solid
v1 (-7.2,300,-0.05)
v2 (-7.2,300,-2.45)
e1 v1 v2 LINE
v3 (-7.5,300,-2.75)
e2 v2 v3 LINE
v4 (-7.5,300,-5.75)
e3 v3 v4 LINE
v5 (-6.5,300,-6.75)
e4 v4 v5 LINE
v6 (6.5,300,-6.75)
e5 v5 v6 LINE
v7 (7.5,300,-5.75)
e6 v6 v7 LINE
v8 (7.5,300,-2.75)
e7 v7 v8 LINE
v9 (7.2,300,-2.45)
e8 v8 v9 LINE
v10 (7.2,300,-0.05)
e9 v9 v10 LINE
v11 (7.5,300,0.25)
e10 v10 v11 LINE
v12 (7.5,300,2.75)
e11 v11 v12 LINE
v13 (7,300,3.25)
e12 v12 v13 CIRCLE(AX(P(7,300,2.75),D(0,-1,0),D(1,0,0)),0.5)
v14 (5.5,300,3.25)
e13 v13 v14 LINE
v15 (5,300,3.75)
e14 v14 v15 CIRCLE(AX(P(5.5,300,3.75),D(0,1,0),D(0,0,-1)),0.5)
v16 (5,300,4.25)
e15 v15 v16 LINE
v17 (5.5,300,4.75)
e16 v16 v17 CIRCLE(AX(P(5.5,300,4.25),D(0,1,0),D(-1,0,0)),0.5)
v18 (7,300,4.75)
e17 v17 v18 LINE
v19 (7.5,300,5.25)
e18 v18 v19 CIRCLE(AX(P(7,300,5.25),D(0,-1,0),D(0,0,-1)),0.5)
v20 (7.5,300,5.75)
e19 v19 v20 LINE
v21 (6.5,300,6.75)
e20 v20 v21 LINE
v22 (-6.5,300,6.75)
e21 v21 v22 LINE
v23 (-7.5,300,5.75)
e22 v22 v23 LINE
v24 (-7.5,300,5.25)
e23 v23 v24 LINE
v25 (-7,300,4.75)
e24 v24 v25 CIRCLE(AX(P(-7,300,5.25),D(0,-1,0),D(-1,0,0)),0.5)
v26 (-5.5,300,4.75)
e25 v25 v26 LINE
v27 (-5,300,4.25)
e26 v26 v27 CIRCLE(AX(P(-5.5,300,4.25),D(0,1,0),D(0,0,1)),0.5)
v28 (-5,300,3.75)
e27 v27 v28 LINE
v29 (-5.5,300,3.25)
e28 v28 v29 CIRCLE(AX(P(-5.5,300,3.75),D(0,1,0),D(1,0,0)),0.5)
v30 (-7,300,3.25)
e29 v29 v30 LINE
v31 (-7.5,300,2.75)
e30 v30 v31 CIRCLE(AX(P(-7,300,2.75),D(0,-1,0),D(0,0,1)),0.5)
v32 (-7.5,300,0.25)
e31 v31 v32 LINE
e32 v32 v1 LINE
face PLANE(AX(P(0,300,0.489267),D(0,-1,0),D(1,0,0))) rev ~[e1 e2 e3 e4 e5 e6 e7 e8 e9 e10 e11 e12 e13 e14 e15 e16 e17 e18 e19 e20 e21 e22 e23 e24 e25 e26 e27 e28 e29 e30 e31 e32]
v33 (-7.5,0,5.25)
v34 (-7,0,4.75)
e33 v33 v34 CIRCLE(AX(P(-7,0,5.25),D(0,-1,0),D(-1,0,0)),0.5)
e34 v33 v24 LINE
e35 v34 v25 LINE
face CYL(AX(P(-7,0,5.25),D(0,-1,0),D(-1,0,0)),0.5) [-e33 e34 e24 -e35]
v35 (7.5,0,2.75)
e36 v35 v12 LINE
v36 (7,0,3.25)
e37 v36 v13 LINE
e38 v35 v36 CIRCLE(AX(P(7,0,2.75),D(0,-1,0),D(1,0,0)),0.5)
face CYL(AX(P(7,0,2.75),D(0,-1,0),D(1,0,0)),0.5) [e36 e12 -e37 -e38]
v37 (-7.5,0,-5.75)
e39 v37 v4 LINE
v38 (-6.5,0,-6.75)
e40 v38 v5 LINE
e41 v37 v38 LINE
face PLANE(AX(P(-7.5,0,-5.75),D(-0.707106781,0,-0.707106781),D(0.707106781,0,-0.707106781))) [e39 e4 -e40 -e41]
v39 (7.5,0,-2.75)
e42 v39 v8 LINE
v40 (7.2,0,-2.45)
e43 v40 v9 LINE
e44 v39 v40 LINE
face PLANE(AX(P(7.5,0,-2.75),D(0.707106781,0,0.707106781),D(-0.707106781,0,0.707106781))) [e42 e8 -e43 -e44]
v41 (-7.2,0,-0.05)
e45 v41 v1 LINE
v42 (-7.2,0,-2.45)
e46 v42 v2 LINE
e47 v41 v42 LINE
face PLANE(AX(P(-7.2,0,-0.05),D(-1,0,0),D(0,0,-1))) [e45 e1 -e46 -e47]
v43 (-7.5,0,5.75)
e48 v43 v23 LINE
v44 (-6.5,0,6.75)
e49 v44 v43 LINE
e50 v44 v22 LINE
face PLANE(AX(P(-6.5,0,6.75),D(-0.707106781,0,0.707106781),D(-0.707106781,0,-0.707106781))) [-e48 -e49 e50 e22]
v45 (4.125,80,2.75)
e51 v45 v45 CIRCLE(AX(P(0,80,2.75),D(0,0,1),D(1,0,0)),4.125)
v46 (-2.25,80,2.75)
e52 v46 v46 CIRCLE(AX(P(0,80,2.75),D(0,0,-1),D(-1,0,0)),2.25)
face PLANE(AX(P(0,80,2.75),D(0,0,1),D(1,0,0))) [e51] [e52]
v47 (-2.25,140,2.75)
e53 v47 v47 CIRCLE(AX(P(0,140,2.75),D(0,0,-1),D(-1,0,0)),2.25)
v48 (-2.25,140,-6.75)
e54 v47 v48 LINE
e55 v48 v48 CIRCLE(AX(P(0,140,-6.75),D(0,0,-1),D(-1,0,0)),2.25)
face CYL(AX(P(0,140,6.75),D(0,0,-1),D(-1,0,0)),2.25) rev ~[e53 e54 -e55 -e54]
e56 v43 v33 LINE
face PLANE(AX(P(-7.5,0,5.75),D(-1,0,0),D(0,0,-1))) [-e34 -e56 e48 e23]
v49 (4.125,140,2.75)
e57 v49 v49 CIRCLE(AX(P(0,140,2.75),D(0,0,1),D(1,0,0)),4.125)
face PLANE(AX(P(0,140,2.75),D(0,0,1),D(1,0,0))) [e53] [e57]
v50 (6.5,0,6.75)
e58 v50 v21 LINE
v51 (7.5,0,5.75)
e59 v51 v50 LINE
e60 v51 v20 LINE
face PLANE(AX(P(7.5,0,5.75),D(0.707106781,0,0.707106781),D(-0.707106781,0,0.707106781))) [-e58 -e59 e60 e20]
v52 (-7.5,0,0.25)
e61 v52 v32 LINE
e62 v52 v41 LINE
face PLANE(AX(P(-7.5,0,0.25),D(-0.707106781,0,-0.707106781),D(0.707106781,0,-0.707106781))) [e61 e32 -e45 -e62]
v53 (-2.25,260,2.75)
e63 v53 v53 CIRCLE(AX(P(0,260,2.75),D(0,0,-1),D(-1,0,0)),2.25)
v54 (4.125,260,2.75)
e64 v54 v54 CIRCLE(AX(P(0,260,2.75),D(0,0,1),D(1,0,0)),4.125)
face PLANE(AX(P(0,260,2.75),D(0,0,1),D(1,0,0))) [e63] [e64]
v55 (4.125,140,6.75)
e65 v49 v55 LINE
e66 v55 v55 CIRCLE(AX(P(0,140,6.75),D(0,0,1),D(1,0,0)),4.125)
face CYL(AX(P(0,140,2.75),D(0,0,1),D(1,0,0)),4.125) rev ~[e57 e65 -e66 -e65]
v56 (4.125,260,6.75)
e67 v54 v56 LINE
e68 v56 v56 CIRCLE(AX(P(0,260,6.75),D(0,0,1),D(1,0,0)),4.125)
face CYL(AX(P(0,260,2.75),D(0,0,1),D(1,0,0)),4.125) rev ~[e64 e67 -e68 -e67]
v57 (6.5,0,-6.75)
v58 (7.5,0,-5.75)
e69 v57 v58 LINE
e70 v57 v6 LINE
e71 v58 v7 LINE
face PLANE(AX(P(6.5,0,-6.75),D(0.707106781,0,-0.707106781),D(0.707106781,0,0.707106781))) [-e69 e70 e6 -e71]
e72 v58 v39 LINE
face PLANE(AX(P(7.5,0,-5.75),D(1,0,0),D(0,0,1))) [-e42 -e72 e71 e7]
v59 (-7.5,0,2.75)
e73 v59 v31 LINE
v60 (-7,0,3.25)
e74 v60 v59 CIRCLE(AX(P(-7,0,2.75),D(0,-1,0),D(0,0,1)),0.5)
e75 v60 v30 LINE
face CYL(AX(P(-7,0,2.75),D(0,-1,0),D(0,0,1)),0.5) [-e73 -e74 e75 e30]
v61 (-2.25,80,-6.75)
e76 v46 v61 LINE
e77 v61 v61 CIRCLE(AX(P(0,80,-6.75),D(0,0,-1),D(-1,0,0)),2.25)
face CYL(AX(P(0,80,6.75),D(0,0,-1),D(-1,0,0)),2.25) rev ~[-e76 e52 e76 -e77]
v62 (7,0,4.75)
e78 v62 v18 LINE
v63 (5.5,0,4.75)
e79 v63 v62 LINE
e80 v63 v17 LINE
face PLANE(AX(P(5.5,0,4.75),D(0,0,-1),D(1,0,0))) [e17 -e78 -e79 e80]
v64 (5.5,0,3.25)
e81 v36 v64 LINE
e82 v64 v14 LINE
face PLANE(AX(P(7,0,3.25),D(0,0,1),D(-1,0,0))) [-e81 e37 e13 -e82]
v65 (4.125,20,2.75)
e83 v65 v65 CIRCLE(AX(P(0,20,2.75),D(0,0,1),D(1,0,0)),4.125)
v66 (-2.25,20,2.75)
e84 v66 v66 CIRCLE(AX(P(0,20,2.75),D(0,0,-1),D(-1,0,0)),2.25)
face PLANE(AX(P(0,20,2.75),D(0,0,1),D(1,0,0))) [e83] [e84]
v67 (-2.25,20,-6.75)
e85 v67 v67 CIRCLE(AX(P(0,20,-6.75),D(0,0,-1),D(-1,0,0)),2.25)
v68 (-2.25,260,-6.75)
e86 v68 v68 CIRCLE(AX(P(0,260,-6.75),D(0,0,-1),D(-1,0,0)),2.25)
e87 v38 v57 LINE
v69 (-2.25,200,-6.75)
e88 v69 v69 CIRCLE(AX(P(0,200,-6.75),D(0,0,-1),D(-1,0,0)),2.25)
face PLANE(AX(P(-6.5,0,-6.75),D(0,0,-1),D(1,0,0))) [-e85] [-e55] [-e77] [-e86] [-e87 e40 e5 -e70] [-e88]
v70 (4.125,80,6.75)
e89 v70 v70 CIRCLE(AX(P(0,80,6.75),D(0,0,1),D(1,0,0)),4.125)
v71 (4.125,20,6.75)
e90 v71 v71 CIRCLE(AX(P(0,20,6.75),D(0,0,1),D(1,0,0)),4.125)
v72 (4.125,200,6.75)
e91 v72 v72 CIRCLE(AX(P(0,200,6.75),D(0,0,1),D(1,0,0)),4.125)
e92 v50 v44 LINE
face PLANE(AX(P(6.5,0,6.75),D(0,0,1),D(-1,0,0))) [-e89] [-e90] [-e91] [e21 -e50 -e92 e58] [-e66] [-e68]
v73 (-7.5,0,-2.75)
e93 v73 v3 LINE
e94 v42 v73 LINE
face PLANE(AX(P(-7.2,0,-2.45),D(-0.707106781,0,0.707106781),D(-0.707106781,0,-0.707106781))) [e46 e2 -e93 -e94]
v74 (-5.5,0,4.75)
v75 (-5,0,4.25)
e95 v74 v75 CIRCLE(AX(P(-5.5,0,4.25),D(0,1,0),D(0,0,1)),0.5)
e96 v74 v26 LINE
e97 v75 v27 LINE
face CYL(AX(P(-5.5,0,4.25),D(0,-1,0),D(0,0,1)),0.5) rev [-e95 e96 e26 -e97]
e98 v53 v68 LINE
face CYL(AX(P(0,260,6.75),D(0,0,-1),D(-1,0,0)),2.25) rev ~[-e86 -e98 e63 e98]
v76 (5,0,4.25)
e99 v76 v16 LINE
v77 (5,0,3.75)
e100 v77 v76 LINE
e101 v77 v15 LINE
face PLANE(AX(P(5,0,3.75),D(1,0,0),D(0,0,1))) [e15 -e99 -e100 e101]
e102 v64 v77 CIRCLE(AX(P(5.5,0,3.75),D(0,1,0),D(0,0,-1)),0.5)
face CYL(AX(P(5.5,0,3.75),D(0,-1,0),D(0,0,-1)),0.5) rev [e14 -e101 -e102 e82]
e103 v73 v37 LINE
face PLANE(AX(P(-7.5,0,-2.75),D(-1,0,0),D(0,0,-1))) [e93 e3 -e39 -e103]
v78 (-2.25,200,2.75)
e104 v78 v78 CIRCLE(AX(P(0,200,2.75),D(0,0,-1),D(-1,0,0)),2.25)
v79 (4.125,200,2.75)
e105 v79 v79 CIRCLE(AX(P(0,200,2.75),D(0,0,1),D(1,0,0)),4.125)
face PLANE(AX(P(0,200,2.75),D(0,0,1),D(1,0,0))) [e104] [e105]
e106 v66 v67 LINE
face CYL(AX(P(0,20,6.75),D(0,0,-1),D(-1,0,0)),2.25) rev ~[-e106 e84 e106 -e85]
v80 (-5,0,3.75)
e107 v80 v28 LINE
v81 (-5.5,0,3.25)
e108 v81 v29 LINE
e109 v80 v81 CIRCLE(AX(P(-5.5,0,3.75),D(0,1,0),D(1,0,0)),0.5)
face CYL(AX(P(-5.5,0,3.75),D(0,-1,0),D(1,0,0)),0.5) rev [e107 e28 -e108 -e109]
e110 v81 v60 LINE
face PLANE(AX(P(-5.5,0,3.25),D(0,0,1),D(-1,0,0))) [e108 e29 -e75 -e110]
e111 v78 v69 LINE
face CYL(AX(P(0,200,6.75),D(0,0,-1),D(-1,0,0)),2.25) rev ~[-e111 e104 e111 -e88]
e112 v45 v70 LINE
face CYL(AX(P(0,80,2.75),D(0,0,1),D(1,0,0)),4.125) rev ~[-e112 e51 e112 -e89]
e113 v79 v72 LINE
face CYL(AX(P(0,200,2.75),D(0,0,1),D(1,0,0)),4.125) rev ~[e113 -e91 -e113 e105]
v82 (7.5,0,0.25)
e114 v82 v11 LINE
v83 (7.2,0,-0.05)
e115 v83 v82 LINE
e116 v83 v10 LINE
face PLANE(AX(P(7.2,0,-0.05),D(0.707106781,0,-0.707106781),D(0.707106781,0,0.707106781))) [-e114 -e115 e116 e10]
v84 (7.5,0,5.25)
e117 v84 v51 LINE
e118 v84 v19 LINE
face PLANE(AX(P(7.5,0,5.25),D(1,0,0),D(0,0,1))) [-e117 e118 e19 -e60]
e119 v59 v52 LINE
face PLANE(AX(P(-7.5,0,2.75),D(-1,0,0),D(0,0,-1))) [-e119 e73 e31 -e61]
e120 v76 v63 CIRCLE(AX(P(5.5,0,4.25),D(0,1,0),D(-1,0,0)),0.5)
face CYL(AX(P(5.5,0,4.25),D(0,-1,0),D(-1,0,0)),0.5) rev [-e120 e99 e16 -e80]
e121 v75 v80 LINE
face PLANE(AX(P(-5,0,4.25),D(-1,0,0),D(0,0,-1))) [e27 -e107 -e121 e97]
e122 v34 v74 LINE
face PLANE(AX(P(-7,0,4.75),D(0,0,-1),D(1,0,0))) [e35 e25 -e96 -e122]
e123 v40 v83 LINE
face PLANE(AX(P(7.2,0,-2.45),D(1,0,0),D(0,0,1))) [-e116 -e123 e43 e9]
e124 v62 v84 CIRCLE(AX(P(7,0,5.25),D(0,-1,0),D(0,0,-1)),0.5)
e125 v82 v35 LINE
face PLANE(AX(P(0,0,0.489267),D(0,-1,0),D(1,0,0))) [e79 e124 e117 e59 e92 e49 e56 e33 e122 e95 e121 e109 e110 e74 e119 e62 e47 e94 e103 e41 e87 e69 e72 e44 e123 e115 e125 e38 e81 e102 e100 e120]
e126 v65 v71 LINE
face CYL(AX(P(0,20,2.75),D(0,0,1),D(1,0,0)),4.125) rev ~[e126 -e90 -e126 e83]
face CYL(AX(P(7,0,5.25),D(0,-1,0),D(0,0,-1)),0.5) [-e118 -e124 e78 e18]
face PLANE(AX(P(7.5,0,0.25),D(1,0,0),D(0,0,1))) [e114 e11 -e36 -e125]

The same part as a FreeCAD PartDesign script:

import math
import FreeCAD as App
import Part
import Sketcher

V = App.Vector
Q = App.Units.Quantity

doc = App.newDocument("Part")
body = doc.addObject("PartDesign::Body", "Body")

# Sketch on XZ plane
sketch1 = body.newObject("Sketcher::SketchObject", "Sketch")
sketch1.AttachmentSupport = (doc.getObject("XZ_Plane"), [""])
sketch1.MapMode = "FlatFace"
sketch1.addGeometry([
    Part.LineSegment(V(-6.5, -6.75, 0), V(6.5, -6.75, 0)),  # 0
    Part.LineSegment(V(6.5, -6.75, 0), V(7.5, -5.75, 0)),  # 1
    Part.LineSegment(V(7.5, -5.75, 0), V(7.5, -2.75, 0)),  # 2
    Part.LineSegment(V(7.5, -2.75, 0), V(7.2, -2.45, 0)),  # 3
    Part.LineSegment(V(7.2, -2.45, 0), V(7.2, -0.05, 0)),  # 4
    Part.LineSegment(V(7.2, -0.05, 0), V(7.5, 0.25, 0)),  # 5
    Part.LineSegment(V(7.5, 0.25, 0), V(7.5, 2.75, 0)),  # 6
    Part.ArcOfCircle(Part.Circle(V(7, 2.75, 0), V(0, 0, 1), 0.5), math.radians(0), math.radians(90)),  # 7
    Part.LineSegment(V(7, 3.25, 0), V(5.5, 3.25, 0)),  # 8
    Part.ArcOfCircle(Part.Circle(V(5.5, 3.75, 0), V(0, 0, 1), 0.5), math.radians(180), math.radians(270)),  # 9
    Part.LineSegment(V(5, 3.75, 0), V(5, 4.25, 0)),  # 10
    Part.ArcOfCircle(Part.Circle(V(5.5, 4.25, 0), V(0, 0, 1), 0.5), math.radians(90), math.radians(180)),  # 11
    Part.LineSegment(V(5.5, 4.75, 0), V(7, 4.75, 0)),  # 12
    Part.ArcOfCircle(Part.Circle(V(7, 5.25, 0), V(0, 0, 1), 0.5), math.radians(-90), math.radians(0)),  # 13
    Part.LineSegment(V(7.5, 5.25, 0), V(7.5, 5.75, 0)),  # 14
    Part.LineSegment(V(7.5, 5.75, 0), V(6.5, 6.75, 0)),  # 15
    Part.LineSegment(V(6.5, 6.75, 0), V(-6.5, 6.75, 0)),  # 16
    Part.LineSegment(V(-6.5, 6.75, 0), V(-7.5, 5.75, 0)),  # 17
    Part.LineSegment(V(-7.5, 5.75, 0), V(-7.5, 5.25, 0)),  # 18
    Part.ArcOfCircle(Part.Circle(V(-7, 5.25, 0), V(0, 0, 1), 0.5), math.radians(180), math.radians(270)),  # 19
    Part.LineSegment(V(-7, 4.75, 0), V(-5.5, 4.75, 0)),  # 20
    Part.ArcOfCircle(Part.Circle(V(-5.5, 4.25, 0), V(0, 0, 1), 0.5), math.radians(0), math.radians(90)),  # 21
    Part.LineSegment(V(-5, 4.25, 0), V(-5, 3.75, 0)),  # 22
    Part.ArcOfCircle(Part.Circle(V(-5.5, 3.75, 0), V(0, 0, 1), 0.5), math.radians(-90), math.radians(0)),  # 23
    Part.LineSegment(V(-5.5, 3.25, 0), V(-7, 3.25, 0)),  # 24
    Part.ArcOfCircle(Part.Circle(V(-7, 2.75, 0), V(0, 0, 1), 0.5), math.radians(90), math.radians(180)),  # 25
    Part.LineSegment(V(-7.5, 2.75, 0), V(-7.5, 0.25, 0)),  # 26
    Part.LineSegment(V(-7.5, 0.25, 0), V(-7.2, -0.05, 0)),  # 27
    Part.LineSegment(V(-7.2, -0.05, 0), V(-7.2, -2.45, 0)),  # 28
    Part.LineSegment(V(-7.2, -2.45, 0), V(-7.5, -2.75, 0)),  # 29
    Part.LineSegment(V(-7.5, -2.75, 0), V(-7.5, -5.75, 0)),  # 30
    Part.LineSegment(V(-7.5, -5.75, 0), V(-6.5, -6.75, 0)),  # 31
], False)
sketch1.addConstraint([
    Sketcher.Constraint("Coincident", 0, 2, 1, 1),
    Sketcher.Constraint("Coincident", 1, 2, 2, 1),
    Sketcher.Constraint("Coincident", 2, 2, 3, 1),
    Sketcher.Constraint("Coincident", 3, 2, 4, 1),
    Sketcher.Constraint("Coincident", 4, 2, 5, 1),
    Sketcher.Constraint("Coincident", 5, 2, 6, 1),
    Sketcher.Constraint("Tangent", 6, 2, 7, 1),
    Sketcher.Constraint("Tangent", 7, 2, 8, 1),
    Sketcher.Constraint("Tangent", 8, 2, 9, 2),
    Sketcher.Constraint("Tangent", 9, 1, 10, 1),
    Sketcher.Constraint("Tangent", 10, 2, 11, 2),
    Sketcher.Constraint("Tangent", 11, 1, 12, 1),
    Sketcher.Constraint("Tangent", 12, 2, 13, 1),
    Sketcher.Constraint("Tangent", 13, 2, 14, 1),
    Sketcher.Constraint("Coincident", 14, 2, 15, 1),
    Sketcher.Constraint("Coincident", 15, 2, 16, 1),
    Sketcher.Constraint("Coincident", 16, 2, 17, 1),
    Sketcher.Constraint("Coincident", 17, 2, 18, 1),
    Sketcher.Constraint("Tangent", 18, 2, 19, 1),
    Sketcher.Constraint("Tangent", 19, 2, 20, 1),
    Sketcher.Constraint("Tangent", 20, 2, 21, 2),
    Sketcher.Constraint("Tangent", 21, 1, 22, 1),
    Sketcher.Constraint("Tangent", 22, 2, 23, 2),
    Sketcher.Constraint("Tangent", 23, 1, 24, 1),
    Sketcher.Constraint("Tangent", 24, 2, 25, 1),
    Sketcher.Constraint("Tangent", 25, 2, 26, 1),
    Sketcher.Constraint("Coincident", 26, 2, 27, 1),
    Sketcher.Constraint("Coincident", 27, 2, 28, 1),
    Sketcher.Constraint("Coincident", 28, 2, 29, 1),
    Sketcher.Constraint("Coincident", 29, 2, 30, 1),
    Sketcher.Constraint("Coincident", 30, 2, 31, 1),
    Sketcher.Constraint("Coincident", 31, 2, 0, 1),
    Sketcher.Constraint("Horizontal", 0),
    Sketcher.Constraint("Vertical", 2),
    Sketcher.Constraint("Vertical", 4),
    Sketcher.Constraint("Vertical", 6),
    Sketcher.Constraint("Horizontal", 8),
    Sketcher.Constraint("Vertical", 10),
    Sketcher.Constraint("Horizontal", 12),
    Sketcher.Constraint("Vertical", 14),
    Sketcher.Constraint("Horizontal", 16),
    Sketcher.Constraint("Vertical", 18),
    Sketcher.Constraint("Horizontal", 20),
    Sketcher.Constraint("Vertical", 22),
    Sketcher.Constraint("Horizontal", 24),
    Sketcher.Constraint("Vertical", 26),
    Sketcher.Constraint("Vertical", 28),
    Sketcher.Constraint("Vertical", 30),
    Sketcher.Constraint("Equal", 7, 9),
    Sketcher.Constraint("Equal", 9, 11),
    Sketcher.Constraint("Equal", 11, 13),
    Sketcher.Constraint("Equal", 13, 19),
    Sketcher.Constraint("Equal", 19, 21),
    Sketcher.Constraint("Equal", 21, 23),
    Sketcher.Constraint("Equal", 23, 25),
    Sketcher.Constraint("Symmetric", 0, 2, 16, 2, -1, 1),
    Sketcher.Constraint("Symmetric", 1, 2, 17, 2, -1, 1),
    Sketcher.Constraint("Symmetric", 2, 2, 25, 2, -1, 1),
    Sketcher.Constraint("Symmetric", 6, 2, 29, 2, -1, 1),
    Sketcher.Constraint("Symmetric", 14, 2, 30, 2, -1, 1),
    Sketcher.Constraint("Symmetric", 13, 3, 19, 3, -2),
    Sketcher.Constraint("Symmetric", 9, 3, 23, 3, -2),
    Sketcher.Constraint("Symmetric", 4, 2, 27, 2, -2),
    Sketcher.Constraint("Perpendicular", 1, 3),
    Sketcher.Constraint("Perpendicular", 3, 5),
    Sketcher.Constraint("Perpendicular", 5, 15),
    Sketcher.Constraint("Perpendicular", 17, 27),
    Sketcher.Constraint("Perpendicular", 27, 29),
    Sketcher.Constraint("Perpendicular", 29, 31),
    Sketcher.Constraint("Horizontal", 14, 2, 17, 2),
    Sketcher.Constraint("Horizontal", 5, 2, 26, 2),
    Sketcher.Constraint("Equal", 10, 14),
    Sketcher.Constraint("Radius", 7, Q("0.5 mm")),
    Sketcher.Constraint("DistanceX", 0, 1, 0, 2, Q("13 mm")),
    Sketcher.Constraint("DistanceY", 2, 1, 2, 2, Q("3 mm")),
    Sketcher.Constraint("DistanceX", 8, 2, 8, 1, Q("1.5 mm")),
    Sketcher.Constraint("DistanceY", 4, 1, 4, 2, Q("2.4 mm")),
    Sketcher.Constraint("DistanceY", 6, 1, 6, 2, Q("2.5 mm")),
    Sketcher.Constraint("DistanceX", -1, 1, 7, 3, Q("7 mm")),
    Sketcher.Constraint("DistanceY", 0, 2, 11, 3, Q("11 mm")),
])
pad1 = body.newObject("PartDesign::Pad", "Pad")
pad1.Profile = sketch1
pad1.Length = 300
pad1.Reversed = True

# Sketch on XY plane
sketch2 = body.newObject("Sketcher::SketchObject", "Sketch001")
sketch2.AttachmentSupport = (doc.getObject("XY_Plane"), [""])
sketch2.MapMode = "FlatFace"
sketch2.AttachmentOffset = App.Placement(V(0, 0, 6.75), App.Rotation())
sketch2.addGeometry([
    Part.Circle(V(0, 20, 0), V(0, 0, 1), 2.2),  # 0
    Part.Circle(V(0, 80, 0), V(0, 0, 1), 2.2),  # 1
    Part.Circle(V(0, 140, 0), V(0, 0, 1), 2.2),  # 2
    Part.Circle(V(0, 200, 0), V(0, 0, 1), 2.2),  # 3
    Part.Circle(V(0, 260, 0), V(0, 0, 1), 2.2),  # 4
], False)
sketch2.addConstraint([
    Sketcher.Constraint("Equal", 0, 1),
    Sketcher.Constraint("Equal", 1, 2),
    Sketcher.Constraint("Equal", 2, 3),
    Sketcher.Constraint("Equal", 3, 4),
    Sketcher.Constraint("PointOnObject", 0, 3, -2),
    Sketcher.Constraint("PointOnObject", 1, 3, -2),
    Sketcher.Constraint("PointOnObject", 2, 3, -2),
    Sketcher.Constraint("PointOnObject", 3, 3, -2),
    Sketcher.Constraint("PointOnObject", 4, 3, -2),
    Sketcher.Constraint("Diameter", 0, Q("4.5 mm")),
    Sketcher.Constraint("DistanceY", -1, 1, 0, 3, Q("20 mm")),
    Sketcher.Constraint("DistanceY", -1, 1, 1, 3, Q("80 mm")),
    Sketcher.Constraint("DistanceY", -1, 1, 2, 3, Q("140 mm")),
    Sketcher.Constraint("DistanceY", -1, 1, 3, 3, Q("200 mm")),
    Sketcher.Constraint("DistanceY", -1, 1, 4, 3, Q("260 mm")),
])
doc.recompute()
hole = body.newObject("PartDesign::Hole", "Hole")
hole.Profile = sketch2
hole.ThreadType = "None"
hole.Diameter = 4.5
hole.DepthType = "ThroughAll"
hole.HoleCutType = "Counterbore"
hole.HoleCutDiameter = 8.25
hole.HoleCutDepth = 4

doc.recompute()
